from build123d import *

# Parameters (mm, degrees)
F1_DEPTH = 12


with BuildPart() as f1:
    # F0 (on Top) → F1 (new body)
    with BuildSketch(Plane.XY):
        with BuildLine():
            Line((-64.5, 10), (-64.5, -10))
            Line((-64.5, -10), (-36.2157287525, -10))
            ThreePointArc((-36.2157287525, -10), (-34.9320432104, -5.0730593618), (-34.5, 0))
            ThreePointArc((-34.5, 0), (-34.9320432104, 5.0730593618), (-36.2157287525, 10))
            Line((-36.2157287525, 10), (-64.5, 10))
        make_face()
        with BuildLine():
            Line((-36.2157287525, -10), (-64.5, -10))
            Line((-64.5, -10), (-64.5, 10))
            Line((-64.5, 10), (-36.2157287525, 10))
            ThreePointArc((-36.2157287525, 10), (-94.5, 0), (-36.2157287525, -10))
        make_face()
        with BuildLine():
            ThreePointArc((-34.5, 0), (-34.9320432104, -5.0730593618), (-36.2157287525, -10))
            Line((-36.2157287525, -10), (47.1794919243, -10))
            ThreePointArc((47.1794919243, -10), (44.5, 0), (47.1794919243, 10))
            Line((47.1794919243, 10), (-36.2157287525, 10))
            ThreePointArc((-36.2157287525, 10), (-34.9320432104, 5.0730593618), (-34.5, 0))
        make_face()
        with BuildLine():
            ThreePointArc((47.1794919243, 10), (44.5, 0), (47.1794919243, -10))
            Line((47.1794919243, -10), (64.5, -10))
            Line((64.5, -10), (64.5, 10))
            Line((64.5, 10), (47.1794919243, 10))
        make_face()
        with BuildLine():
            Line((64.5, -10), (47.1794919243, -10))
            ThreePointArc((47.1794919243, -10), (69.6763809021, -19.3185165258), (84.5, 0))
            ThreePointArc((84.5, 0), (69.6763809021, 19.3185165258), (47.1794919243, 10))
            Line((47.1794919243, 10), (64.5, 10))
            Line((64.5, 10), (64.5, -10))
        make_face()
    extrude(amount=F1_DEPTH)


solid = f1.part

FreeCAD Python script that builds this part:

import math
import FreeCAD as App
import Part
import Sketcher

doc = App.newDocument("Part")
body = doc.addObject("PartDesign::Body", "Body")

# Sketch on XY plane
sketch1 = body.newObject("Sketcher::SketchObject", "Sketch")
sketch1.AttachmentSupport = (doc.getObject("XY_Plane"), [""])
sketch1.MapMode = "FlatFace"
sketch1.addGeometry(Part.ArcOfCircle(Part.Circle(App.Vector(-64, 0, 0), App.Vector(0, 0, 1), 30), math.radians(19), math.radians(341)), False)
sketch1.addGeometry(Part.LineSegment(App.Vector(-36, -10, 0), App.Vector(47, -10, 0)), False)
sketch1.addGeometry(Part.ArcOfCircle(Part.Circle(App.Vector(64, 0, 0), App.Vector(0, 0, 1), 20), math.radians(-150), math.radians(0)), False)
sketch1.addGeometry(Part.ArcOfCircle(Part.Circle(App.Vector(64, 0, 0), App.Vector(0, 0, 1), 20), math.radians(0), math.radians(150)), False)
sketch1.addGeometry(Part.LineSegment(App.Vector(47, 10, 0), App.Vector(-36, 10, 0)), False)
sketch1.addConstraint(Sketcher.Constraint("Coincident", 0, 2, 1, 1))
sketch1.addConstraint(Sketcher.Constraint("Coincident", 1, 2, 2, 1))
sketch1.addConstraint(Sketcher.Constraint("Tangent", 2, 2, 3, 1))
sketch1.addConstraint(Sketcher.Constraint("Coincident", 3, 2, 4, 1))
sketch1.addConstraint(Sketcher.Constraint("Coincident", 4, 2, 0, 1))
sketch1.addConstraint(Sketcher.Constraint("Horizontal", 1))
sketch1.addConstraint(Sketcher.Constraint("Horizontal", 4))
sketch1.addConstraint(Sketcher.Constraint("Equal", 2, 3))
sketch1.addConstraint(Sketcher.Constraint("Symmetric", 0, 3, 2, 3, -1, 1))
sketch1.addConstraint(Sketcher.Constraint("Symmetric", 1, 2, 3, 2, -1))
sketch1.addConstraint(Sketcher.Constraint("PointOnObject", 2, 2, -1))
sketch1.addConstraint(Sketcher.Constraint("Radius", 0, 30.0))
sketch1.addConstraint(Sketcher.Constraint("Radius", 2, 20.0))
sketch1.addConstraint(Sketcher.Constraint("DistanceY", 0, 2, -1, 1, 10.0))
sketch1.addConstraint(Sketcher.Constraint("DistanceX", 0, 3, 2, 3, 129.0))
pad1 = body.newObject("PartDesign::Pad", "Pad")
pad1.Profile = sketch1
pad1.Length = 12

doc.recompute()
